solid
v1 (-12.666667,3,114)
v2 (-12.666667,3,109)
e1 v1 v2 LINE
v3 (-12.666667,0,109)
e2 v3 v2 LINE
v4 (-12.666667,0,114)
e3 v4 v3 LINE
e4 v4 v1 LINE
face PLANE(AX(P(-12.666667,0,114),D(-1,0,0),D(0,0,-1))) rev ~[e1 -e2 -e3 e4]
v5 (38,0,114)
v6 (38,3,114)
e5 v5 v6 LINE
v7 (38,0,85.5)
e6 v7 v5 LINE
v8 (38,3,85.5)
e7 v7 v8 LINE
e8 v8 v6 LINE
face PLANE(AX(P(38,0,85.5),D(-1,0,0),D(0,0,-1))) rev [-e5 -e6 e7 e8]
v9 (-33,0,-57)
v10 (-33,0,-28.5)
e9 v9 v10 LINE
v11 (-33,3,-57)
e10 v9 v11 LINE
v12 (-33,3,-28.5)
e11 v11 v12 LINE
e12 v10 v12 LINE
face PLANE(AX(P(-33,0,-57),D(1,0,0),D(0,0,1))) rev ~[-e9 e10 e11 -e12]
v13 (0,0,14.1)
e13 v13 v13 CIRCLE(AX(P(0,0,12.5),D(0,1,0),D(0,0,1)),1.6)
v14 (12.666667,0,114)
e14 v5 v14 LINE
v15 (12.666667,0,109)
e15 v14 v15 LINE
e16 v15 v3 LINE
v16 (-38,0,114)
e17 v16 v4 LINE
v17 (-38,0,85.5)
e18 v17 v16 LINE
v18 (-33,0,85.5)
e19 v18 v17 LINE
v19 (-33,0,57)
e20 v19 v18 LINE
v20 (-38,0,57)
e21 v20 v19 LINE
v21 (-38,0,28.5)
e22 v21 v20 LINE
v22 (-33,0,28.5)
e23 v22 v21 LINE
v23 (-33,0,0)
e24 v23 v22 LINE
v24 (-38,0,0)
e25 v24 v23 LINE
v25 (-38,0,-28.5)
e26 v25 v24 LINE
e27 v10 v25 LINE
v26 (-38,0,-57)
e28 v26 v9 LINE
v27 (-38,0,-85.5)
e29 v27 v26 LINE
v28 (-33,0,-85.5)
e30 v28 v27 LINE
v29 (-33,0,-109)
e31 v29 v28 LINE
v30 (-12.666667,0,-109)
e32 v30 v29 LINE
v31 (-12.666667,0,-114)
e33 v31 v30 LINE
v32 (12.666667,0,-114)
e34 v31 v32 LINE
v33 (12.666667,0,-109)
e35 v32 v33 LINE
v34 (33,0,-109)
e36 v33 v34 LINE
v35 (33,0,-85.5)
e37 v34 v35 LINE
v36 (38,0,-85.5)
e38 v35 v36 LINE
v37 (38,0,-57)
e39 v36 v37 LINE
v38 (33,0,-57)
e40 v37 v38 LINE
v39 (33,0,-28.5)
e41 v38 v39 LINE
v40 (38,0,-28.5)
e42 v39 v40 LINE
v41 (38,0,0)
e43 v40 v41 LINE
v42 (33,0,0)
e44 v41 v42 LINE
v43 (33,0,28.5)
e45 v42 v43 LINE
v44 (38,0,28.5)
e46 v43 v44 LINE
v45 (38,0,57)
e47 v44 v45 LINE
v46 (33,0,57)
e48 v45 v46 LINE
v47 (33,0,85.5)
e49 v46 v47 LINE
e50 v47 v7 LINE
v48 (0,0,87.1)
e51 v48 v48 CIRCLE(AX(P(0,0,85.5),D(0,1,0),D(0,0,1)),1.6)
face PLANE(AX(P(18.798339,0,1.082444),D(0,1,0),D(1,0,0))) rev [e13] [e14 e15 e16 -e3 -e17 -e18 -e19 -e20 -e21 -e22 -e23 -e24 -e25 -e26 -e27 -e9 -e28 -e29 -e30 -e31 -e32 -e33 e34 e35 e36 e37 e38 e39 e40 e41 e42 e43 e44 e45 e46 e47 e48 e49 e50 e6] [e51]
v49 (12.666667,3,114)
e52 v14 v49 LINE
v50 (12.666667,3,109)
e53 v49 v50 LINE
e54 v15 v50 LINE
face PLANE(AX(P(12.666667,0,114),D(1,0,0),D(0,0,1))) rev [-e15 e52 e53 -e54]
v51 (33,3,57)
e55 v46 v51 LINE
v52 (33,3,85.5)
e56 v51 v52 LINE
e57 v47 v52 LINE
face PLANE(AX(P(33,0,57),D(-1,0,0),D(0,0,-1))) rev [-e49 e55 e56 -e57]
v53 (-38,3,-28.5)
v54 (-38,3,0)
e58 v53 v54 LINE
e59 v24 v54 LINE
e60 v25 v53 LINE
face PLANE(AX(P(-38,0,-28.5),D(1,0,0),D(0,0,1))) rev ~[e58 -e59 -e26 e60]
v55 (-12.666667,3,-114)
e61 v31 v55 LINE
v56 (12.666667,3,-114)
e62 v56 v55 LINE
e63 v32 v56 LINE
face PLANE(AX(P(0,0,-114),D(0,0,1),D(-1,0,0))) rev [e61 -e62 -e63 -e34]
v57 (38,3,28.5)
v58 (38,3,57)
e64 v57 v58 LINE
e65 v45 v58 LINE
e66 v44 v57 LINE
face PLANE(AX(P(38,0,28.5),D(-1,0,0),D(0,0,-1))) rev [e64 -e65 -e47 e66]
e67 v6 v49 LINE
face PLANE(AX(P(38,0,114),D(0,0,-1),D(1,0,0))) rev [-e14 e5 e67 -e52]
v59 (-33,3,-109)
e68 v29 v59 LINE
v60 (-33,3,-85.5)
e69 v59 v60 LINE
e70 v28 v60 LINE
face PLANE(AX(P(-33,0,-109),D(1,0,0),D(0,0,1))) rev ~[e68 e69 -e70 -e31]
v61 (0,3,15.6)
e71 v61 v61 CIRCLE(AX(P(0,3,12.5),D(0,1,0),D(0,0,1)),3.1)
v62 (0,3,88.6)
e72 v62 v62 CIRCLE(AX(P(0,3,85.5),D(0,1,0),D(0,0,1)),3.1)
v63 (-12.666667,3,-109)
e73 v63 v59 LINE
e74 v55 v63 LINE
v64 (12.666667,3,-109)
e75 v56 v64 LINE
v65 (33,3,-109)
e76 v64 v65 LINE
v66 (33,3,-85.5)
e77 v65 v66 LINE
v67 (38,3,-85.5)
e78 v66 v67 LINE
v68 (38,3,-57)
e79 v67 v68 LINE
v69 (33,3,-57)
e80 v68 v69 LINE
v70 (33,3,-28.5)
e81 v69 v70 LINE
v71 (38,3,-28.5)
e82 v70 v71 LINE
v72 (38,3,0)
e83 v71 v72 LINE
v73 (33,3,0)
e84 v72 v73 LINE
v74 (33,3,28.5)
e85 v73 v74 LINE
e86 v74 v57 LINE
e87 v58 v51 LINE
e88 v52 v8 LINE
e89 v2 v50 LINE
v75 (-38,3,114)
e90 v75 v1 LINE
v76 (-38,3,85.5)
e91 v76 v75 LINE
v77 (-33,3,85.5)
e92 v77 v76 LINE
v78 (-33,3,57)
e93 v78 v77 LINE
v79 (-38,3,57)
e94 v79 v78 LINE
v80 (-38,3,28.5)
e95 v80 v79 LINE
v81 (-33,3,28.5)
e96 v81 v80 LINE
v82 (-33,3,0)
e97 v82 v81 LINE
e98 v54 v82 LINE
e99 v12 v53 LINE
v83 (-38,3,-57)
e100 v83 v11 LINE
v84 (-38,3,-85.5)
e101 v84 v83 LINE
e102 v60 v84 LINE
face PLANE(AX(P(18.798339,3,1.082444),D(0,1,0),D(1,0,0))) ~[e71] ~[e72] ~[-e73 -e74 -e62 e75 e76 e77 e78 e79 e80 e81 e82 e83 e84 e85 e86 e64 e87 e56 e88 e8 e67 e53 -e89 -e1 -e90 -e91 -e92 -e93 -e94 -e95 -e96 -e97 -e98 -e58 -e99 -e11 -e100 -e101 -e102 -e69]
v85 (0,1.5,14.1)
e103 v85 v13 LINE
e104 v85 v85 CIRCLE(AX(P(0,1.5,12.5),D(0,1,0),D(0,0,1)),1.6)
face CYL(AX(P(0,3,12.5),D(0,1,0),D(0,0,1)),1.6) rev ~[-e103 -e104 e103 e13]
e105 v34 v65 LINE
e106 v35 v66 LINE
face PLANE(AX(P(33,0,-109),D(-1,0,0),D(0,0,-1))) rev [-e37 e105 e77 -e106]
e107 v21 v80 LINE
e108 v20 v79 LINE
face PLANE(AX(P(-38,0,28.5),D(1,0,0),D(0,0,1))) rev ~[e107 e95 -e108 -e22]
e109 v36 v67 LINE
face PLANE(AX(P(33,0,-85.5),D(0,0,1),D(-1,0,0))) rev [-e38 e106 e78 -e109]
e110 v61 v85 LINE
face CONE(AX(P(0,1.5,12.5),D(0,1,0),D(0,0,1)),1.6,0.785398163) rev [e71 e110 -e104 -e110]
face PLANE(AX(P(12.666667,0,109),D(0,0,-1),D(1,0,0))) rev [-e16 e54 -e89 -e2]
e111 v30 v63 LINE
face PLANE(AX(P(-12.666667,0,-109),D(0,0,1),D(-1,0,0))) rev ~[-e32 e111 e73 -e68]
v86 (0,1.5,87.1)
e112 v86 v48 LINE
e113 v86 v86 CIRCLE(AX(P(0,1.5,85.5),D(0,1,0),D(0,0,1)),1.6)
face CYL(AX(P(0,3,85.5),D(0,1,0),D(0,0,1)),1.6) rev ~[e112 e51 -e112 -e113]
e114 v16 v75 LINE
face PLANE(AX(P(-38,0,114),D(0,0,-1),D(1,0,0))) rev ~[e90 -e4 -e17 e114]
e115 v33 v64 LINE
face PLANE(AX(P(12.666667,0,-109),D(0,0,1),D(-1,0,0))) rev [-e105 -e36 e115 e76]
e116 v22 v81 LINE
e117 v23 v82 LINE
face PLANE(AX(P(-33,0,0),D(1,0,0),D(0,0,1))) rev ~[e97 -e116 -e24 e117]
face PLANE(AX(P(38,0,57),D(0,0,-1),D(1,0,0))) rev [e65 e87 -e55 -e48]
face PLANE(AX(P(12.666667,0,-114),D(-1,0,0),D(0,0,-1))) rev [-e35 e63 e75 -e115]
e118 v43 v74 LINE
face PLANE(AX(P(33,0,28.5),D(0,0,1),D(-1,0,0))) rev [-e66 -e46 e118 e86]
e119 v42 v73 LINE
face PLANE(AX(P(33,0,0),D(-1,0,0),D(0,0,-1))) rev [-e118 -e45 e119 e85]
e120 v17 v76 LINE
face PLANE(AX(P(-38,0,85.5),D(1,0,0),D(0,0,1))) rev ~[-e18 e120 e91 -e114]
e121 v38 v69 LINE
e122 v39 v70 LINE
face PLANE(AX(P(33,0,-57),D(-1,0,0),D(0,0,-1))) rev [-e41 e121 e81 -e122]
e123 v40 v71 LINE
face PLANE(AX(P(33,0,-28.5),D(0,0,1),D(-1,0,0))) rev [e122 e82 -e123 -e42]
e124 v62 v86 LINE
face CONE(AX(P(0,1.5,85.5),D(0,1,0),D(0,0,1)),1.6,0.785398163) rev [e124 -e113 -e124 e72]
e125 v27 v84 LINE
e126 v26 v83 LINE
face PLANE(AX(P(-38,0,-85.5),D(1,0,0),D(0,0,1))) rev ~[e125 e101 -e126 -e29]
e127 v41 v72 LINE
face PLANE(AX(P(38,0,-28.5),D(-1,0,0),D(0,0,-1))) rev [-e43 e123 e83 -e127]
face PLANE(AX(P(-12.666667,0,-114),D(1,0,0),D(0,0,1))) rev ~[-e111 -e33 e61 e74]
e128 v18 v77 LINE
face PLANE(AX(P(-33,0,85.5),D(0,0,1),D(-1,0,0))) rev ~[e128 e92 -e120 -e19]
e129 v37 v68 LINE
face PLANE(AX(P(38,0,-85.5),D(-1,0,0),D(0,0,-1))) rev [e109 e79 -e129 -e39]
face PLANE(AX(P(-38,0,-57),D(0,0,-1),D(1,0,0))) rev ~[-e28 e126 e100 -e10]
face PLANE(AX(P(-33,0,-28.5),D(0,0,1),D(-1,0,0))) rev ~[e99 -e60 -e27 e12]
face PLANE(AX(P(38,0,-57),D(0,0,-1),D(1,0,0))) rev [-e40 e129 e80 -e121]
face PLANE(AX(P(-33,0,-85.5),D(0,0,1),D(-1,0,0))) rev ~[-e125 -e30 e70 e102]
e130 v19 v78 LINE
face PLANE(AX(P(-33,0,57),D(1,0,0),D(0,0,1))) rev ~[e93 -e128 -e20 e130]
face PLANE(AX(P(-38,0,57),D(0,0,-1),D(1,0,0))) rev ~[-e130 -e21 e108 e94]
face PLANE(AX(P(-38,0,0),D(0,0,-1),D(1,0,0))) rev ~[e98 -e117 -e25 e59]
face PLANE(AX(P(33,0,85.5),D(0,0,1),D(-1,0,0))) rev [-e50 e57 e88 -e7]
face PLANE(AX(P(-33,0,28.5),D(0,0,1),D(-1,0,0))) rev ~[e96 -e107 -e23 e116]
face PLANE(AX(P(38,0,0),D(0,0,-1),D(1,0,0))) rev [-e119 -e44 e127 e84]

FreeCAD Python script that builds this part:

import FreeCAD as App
import Part
import Sketcher
Q = App.Units.Quantity


def edges_at(feature, points):
    """Names of the edges that pass closest to the given points."""
    edges = feature.Shape.Edges
    near = lambda p: min(range(len(edges)), key=lambda i: edges[i].distToShape(Part.Vertex(*p))[0])
    return sorted({f"Edge{near(p) + 1}" for p in points})


def add_polygon(sketch, points):
    """Adds a closed chain of lines whose ends are joined by coincident constraints."""
    first, n = sketch.GeometryCount, len(points)
    for a, b in zip(points, points[1:] + points[:1]):
        sketch.addGeometry(Part.LineSegment(App.Vector(*a, 0), App.Vector(*b, 0)), False)
    for i in range(n):
        sketch.addConstraint(Sketcher.Constraint("Coincident", first + i, 2, first + (i + 1) % n, 1))

doc = App.newDocument("Part")
body = doc.addObject("PartDesign::Body", "Body")

# Sketch on XZ plane
sketch1 = doc.addObject("Sketcher::SketchObject", "Sketch")
body.addObject(sketch1)
sketch1.AttachmentSupport = (doc.XZ_Plane, [""])
sketch1.MapMode = "FlatFace"
add_polygon(sketch1, [(-38, 114), (-13, 114), (-13, 109), (0, 109), (0, -114), (-13, -114), (-13, -109), (-33, -109), (-33, -86), (-38, -86), (-38, -57), (-33, -57), (-33, -28), (-38, -28), (-38, 0), (-33, 0), (-33, 28), (-38, 28), (-38, 57), (-33, 57), (-33, 86), (-38, 86)])  # lines 0-21
sketch1.addConstraint(Sketcher.Constraint("Horizontal", 0))
sketch1.addConstraint(Sketcher.Constraint("Vertical", 1))
sketch1.addConstraint(Sketcher.Constraint("Horizontal", 2))
sketch1.addConstraint(Sketcher.Constraint("Vertical", 3))
sketch1.addConstraint(Sketcher.Constraint("Horizontal", 4))
sketch1.addConstraint(Sketcher.Constraint("Vertical", 5))
sketch1.addConstraint(Sketcher.Constraint("Horizontal", 6))
sketch1.addConstraint(Sketcher.Constraint("Vertical", 7))
sketch1.addConstraint(Sketcher.Constraint("Horizontal", 8))
sketch1.addConstraint(Sketcher.Constraint("Vertical", 9))
sketch1.addConstraint(Sketcher.Constraint("Horizontal", 10))
sketch1.addConstraint(Sketcher.Constraint("Vertical", 11))
sketch1.addConstraint(Sketcher.Constraint("Horizontal", 12))
sketch1.addConstraint(Sketcher.Constraint("Vertical", 13))
sketch1.addConstraint(Sketcher.Constraint("Horizontal", 14))
sketch1.addConstraint(Sketcher.Constraint("Vertical", 15))
sketch1.addConstraint(Sketcher.Constraint("Horizontal", 16))
sketch1.addConstraint(Sketcher.Constraint("Vertical", 17))
sketch1.addConstraint(Sketcher.Constraint("Horizontal", 18))
sketch1.addConstraint(Sketcher.Constraint("Vertical", 19))
sketch1.addConstraint(Sketcher.Constraint("Horizontal", 20))
sketch1.addConstraint(Sketcher.Constraint("Vertical", 21))
sketch1.addConstraint(Sketcher.Constraint("Symmetric", 0, 2, 4, 2, -1))
sketch1.addConstraint(Sketcher.Constraint("Symmetric", 11, 2, 15, 2, -1))
sketch1.addConstraint(Sketcher.Constraint("Symmetric", 9, 2, 17, 2, -1))
sketch1.addConstraint(Sketcher.Constraint("Symmetric", 7, 2, 19, 2, -1))
sketch1.addConstraint(Sketcher.Constraint("PointOnObject", 2, 2, -2))
sketch1.addConstraint(Sketcher.Constraint("PointOnObject", 13, 2, -1))
sketch1.addConstraint(Sketcher.Constraint("Vertical", 7, 2, 10, 2))
sketch1.addConstraint(Sketcher.Constraint("Vertical", 9, 2, 12, 2))
sketch1.addConstraint(Sketcher.Constraint("Vertical", 17, 2, 20, 2))
sketch1.addConstraint(Sketcher.Constraint("Equal", 20, 1))
sketch1.addConstraint(Sketcher.Constraint("Equal", 1, 5))
sketch1.addConstraint(Sketcher.Constraint("Equal", 9, 11))
sketch1.addConstraint(Sketcher.Constraint("Equal", 11, 13))
sketch1.addConstraint(Sketcher.Constraint("Equal", 19, 21))
sketch1.addConstraint(Sketcher.Constraint("DistanceX", 8, 2, 8, 1, Q("5 mm")))
sketch1.addConstraint(Sketcher.Constraint("DistanceY", 3, 2, 3, 1, Q("223 mm")))
sketch1.addConstraint(Sketcher.Constraint("DistanceX", 6, 2, -1, 1, Q("33 mm")))
sketch1.addConstraint(Sketcher.Constraint("DistanceX", 0, 1, 0, 2, Q("25.333333 mm")))
pad1 = doc.addObject("PartDesign::Pad", "Pad")
body.addObject(pad1)
pad1.Profile = sketch1
pad1.Length = 3
pad1.Reversed = True
doc.recompute()

mirrored = doc.addObject("PartDesign::Mirrored", "Mirrored")
body.addObject(mirrored)
mirrored.Originals = [pad1]
mirrored.MirrorPlane = (doc.YZ_Plane, [""])
body.Tip = mirrored

# Sketch on XZ plane
sketch2 = doc.addObject("Sketcher::SketchObject", "Sketch001")
body.addObject(sketch2)
sketch2.AttachmentSupport = (doc.XZ_Plane, [""])
sketch2.MapMode = "FlatFace"
sketch2.AttachmentOffset = App.Placement(App.Vector(0, 0, -3), App.Rotation())
sketch2.addGeometry(Part.Circle(App.Vector(0, 85.5, 0), App.Vector(0, 0, 1), 1.6), False)
sketch2.addGeometry(Part.Circle(App.Vector(0, 12.5, 0), App.Vector(0, 0, 1), 1.6), False)
sketch2.addConstraint(Sketcher.Constraint("Equal", 0, 1))
sketch2.addConstraint(Sketcher.Constraint("PointOnObject", 0, 3, -2))
sketch2.addConstraint(Sketcher.Constraint("PointOnObject", 1, 3, -2))
sketch2.addConstraint(Sketcher.Constraint("Diameter", 0, Q("3.2 mm")))
sketch2.addConstraint(Sketcher.Constraint("DistanceY", 1, 3, 0, 3, Q("73 mm")))
sketch2.addConstraint(Sketcher.Constraint("DistanceY", -1, 1, 0, 3, Q("85.5 mm")))
pocket1 = doc.addObject("PartDesign::Pocket", "Pocket")
body.addObject(pocket1)
pocket1.Profile = sketch2
pocket1.Type = "ThroughAll"
pocket1.Reversed = True
doc.recompute()

chamfer = doc.addObject("PartDesign::Chamfer", "Chamfer")
body.addObject(chamfer)
chamfer.Base = (pocket1, edges_at(pocket1, [(0, 3, 83.9), (0, 3, 10.9)]))
chamfer.Size = 1.5

doc.recompute()
